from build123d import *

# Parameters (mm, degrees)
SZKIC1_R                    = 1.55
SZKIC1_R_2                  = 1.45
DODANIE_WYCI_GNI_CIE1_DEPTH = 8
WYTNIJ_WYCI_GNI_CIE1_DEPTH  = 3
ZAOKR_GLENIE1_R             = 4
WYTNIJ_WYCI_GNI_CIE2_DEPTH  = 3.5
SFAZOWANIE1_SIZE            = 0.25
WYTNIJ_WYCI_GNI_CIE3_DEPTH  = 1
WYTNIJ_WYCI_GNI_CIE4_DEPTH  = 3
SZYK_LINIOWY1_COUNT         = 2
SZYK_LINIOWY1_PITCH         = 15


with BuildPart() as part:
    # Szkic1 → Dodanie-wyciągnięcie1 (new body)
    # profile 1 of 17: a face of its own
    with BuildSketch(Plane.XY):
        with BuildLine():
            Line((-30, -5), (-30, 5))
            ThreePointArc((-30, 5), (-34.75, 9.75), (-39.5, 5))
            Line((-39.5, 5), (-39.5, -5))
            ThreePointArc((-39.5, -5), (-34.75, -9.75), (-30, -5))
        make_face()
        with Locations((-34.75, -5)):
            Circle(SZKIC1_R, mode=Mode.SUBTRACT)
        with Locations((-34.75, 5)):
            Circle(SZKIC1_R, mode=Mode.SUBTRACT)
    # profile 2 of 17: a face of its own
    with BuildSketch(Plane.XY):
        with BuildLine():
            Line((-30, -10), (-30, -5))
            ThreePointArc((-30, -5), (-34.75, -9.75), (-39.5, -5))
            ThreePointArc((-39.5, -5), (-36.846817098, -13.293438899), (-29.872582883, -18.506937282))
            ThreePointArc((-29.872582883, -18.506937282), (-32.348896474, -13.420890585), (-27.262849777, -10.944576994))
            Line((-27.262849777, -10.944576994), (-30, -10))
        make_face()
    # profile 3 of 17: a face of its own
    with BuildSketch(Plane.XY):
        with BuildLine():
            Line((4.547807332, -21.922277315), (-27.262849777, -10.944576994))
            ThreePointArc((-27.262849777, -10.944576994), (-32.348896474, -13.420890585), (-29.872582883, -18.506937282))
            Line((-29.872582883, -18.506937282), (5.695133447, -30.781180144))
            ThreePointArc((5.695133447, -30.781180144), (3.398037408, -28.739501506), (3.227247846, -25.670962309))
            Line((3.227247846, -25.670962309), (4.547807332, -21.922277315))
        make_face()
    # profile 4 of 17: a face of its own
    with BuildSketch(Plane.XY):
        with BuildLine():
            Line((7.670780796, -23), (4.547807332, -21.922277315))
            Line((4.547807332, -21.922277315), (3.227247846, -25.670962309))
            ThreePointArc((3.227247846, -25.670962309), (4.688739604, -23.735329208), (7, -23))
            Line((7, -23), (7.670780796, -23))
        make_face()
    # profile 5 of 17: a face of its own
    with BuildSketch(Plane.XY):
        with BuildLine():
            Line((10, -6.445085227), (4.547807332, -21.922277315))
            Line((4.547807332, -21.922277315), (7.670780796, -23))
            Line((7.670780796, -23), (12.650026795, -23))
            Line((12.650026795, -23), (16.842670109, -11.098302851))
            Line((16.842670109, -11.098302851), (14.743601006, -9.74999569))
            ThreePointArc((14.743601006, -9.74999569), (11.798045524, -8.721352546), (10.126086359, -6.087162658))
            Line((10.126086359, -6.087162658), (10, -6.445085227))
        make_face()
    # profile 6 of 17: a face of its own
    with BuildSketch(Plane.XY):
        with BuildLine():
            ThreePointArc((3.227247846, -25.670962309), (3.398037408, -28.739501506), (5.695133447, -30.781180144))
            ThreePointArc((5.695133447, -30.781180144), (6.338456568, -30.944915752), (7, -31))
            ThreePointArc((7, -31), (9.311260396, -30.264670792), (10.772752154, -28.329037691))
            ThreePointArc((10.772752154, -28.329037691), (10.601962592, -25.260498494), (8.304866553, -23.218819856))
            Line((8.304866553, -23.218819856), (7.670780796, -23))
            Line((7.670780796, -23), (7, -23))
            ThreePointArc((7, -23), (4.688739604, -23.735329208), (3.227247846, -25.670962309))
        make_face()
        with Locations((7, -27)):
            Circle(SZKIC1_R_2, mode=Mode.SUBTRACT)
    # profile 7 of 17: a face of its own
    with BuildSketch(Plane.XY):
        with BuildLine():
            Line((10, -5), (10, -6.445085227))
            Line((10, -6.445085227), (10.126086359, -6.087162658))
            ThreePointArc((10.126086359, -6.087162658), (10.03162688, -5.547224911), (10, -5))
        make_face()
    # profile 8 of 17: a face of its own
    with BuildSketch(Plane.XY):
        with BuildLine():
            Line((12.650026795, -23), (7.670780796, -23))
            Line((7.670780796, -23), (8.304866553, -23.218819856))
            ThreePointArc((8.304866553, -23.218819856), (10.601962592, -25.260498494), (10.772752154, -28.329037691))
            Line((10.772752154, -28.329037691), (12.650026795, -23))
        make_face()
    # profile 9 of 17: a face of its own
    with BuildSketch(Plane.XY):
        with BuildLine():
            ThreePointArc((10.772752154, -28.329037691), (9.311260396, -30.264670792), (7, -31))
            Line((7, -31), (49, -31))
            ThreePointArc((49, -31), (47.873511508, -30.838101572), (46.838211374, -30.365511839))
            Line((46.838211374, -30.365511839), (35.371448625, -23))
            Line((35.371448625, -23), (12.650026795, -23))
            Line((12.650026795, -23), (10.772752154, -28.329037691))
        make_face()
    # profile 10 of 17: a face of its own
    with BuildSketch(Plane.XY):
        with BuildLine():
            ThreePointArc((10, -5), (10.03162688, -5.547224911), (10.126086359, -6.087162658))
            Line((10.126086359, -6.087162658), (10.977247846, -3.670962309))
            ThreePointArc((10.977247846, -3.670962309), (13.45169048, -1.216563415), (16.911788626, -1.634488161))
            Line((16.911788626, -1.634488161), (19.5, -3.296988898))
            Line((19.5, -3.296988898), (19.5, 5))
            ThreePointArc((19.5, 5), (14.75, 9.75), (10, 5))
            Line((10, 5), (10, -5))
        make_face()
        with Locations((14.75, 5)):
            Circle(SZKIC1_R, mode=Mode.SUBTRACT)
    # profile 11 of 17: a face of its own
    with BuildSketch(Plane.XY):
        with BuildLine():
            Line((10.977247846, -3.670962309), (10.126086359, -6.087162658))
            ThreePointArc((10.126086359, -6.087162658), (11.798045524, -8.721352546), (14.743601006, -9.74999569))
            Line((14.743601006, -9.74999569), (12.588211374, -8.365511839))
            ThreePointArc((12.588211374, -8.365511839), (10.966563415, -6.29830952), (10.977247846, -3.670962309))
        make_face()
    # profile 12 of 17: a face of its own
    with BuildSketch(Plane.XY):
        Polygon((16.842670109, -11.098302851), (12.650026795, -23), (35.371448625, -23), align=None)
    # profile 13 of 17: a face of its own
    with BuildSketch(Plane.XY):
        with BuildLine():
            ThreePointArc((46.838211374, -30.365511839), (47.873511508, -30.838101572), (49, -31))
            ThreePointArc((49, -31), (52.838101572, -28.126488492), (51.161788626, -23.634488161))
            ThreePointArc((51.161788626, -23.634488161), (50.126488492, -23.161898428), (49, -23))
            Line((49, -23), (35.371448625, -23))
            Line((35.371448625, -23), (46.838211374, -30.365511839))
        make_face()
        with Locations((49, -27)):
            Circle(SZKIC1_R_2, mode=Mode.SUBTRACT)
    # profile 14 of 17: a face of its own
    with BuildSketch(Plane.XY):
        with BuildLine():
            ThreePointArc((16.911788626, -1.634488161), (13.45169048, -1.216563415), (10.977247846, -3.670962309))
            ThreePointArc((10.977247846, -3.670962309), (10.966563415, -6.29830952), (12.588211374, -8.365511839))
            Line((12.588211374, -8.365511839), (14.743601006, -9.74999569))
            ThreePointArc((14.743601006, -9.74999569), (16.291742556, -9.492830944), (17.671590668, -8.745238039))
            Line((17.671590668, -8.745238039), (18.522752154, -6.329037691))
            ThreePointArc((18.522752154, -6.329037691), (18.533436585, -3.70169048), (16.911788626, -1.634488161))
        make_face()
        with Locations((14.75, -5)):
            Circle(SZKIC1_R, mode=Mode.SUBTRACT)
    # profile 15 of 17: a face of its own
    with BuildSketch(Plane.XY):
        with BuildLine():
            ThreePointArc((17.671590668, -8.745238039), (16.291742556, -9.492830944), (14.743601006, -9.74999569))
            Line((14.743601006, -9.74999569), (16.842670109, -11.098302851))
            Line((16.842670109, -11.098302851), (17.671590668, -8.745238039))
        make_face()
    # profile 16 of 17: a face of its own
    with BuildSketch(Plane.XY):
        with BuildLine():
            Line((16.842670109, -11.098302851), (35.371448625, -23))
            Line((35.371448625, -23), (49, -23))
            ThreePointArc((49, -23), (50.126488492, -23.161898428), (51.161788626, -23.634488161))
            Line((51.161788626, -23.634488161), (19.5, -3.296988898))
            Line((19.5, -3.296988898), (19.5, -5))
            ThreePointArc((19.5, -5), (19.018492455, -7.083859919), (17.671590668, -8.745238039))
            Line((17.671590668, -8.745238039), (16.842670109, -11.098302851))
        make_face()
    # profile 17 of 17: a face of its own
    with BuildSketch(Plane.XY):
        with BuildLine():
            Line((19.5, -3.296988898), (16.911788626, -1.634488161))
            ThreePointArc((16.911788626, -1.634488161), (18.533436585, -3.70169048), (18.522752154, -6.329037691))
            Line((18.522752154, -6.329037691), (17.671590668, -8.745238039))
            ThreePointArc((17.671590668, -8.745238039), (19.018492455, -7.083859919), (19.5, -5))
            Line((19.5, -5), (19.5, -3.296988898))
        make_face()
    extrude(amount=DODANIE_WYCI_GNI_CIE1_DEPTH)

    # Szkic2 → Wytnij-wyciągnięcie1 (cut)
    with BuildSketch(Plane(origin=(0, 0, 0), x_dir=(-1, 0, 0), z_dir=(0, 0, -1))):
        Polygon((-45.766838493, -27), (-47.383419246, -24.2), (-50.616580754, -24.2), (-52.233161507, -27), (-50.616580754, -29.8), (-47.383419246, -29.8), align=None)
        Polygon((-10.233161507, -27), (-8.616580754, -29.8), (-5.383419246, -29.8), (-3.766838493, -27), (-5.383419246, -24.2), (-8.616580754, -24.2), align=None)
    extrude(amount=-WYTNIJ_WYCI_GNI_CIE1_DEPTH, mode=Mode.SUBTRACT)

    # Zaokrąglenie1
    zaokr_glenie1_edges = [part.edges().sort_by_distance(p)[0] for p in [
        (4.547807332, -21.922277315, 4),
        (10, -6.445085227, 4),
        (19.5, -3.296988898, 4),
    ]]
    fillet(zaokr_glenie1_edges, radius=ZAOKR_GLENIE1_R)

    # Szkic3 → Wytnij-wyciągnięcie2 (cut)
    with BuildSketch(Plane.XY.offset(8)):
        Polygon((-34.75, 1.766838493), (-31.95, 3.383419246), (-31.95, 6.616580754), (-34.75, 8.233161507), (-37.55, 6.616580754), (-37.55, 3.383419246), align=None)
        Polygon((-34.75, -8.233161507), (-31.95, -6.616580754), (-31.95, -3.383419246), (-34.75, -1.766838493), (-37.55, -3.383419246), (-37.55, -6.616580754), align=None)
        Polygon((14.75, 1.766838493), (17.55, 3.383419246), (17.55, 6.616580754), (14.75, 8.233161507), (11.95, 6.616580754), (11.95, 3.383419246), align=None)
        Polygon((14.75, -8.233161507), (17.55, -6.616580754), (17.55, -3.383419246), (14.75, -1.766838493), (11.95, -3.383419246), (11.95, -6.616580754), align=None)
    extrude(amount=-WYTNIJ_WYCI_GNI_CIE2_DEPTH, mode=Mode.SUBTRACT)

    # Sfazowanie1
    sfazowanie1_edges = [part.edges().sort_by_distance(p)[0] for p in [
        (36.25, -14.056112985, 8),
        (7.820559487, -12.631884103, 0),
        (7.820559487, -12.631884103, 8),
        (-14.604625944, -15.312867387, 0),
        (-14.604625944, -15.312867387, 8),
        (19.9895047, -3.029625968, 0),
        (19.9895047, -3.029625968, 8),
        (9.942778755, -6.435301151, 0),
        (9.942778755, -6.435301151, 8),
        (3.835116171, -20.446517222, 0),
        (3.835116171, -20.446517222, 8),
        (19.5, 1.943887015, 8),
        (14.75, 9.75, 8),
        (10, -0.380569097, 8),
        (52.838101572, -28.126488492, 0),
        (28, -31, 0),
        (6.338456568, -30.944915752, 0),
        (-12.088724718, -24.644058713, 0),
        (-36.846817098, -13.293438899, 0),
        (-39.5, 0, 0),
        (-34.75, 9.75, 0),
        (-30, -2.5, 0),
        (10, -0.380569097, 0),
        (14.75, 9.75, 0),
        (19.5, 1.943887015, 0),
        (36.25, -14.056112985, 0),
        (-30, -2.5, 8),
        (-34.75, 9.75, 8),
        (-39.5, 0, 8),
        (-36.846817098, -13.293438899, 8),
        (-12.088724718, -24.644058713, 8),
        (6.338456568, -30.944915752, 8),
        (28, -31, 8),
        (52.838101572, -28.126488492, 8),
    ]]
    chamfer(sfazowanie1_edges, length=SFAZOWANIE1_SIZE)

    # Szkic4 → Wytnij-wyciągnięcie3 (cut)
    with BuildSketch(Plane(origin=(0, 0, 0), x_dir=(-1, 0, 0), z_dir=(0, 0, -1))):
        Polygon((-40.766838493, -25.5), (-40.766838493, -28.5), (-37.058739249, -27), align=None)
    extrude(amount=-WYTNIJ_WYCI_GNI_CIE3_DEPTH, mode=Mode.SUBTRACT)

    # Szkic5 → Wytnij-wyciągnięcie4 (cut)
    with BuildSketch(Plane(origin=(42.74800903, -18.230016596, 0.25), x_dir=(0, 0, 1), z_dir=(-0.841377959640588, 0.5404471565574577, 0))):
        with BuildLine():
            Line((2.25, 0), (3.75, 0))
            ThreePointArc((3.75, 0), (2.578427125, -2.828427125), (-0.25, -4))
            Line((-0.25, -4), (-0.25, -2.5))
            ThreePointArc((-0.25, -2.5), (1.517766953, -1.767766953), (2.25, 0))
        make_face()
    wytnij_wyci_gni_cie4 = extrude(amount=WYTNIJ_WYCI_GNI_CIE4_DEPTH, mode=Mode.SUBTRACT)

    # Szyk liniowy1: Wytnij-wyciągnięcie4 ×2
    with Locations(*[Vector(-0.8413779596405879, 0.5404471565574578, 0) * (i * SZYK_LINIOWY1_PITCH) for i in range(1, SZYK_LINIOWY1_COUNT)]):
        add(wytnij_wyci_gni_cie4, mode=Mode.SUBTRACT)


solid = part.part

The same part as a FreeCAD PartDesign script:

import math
import FreeCAD as App
import Part
import Sketcher

V = App.Vector
Q = App.Units.Quantity


def edges_at(feature, points):
    """Names of the edges that pass closest to the given points."""
    edges = feature.Shape.Edges
    near = lambda p: min(range(len(edges)), key=lambda i: edges[i].distToShape(Part.Vertex(*p))[0])
    return sorted({f"Edge{near(p) + 1}" for p in points})

doc = App.newDocument("Part")
body = doc.addObject("PartDesign::Body", "Body")

# Sketch on XY plane
sketch1 = doc.addObject("Sketcher::SketchObject", "Sketch")
body.addObject(sketch1)
sketch1.AttachmentSupport = (doc.XY_Plane, [""])
sketch1.MapMode = "FlatFace"
sketch1.addGeometry(Part.ArcOfCircle(Part.Circle(V(-34.75, 5, 0), V(0, 0, 1), 4.75), math.radians(0), math.radians(180)), False)
sketch1.addGeometry(Part.LineSegment(V(-39.5, 5, 0), V(-39.5, -5, 0)), False)
sketch1.addGeometry(Part.ArcOfCircle(Part.Circle(V(-25.211406, -5, 0), V(0, 0, 1), 14.288594), math.radians(-180), math.radians(-109.039301)), False)
sketch1.addGeometry(Part.LineSegment(V(-29.872583, -18.506937, 0), V(5.695133, -30.78118, 0)), False)
sketch1.addGeometry(Part.ArcOfCircle(Part.Circle(V(7, -27, 0), V(0, 0, 1), 4), math.radians(-109.039301), math.radians(-90)), False)
sketch1.addGeometry(Part.LineSegment(V(7, -31, 0), V(49, -31, 0)), False)
sketch1.addGeometry(Part.ArcOfCircle(Part.Circle(V(49, -27, 0), V(0, 0, 1), 4), math.radians(-90), math.radians(57.285916)), False)
sketch1.addGeometry(Part.LineSegment(V(51.161789, -23.634488, 0), V(19.5, -3.296989, 0)), False)
sketch1.addGeometry(Part.LineSegment(V(19.5, -3.296989, 0), V(19.5, 5, 0)), False)
sketch1.addGeometry(Part.ArcOfCircle(Part.Circle(V(14.75, 5, 0), V(0, 0, 1), 4.75), math.radians(0), math.radians(180)), False)
sketch1.addGeometry(Part.LineSegment(V(10, 5, 0), V(10, -6.445085, 0)), False)
sketch1.addGeometry(Part.LineSegment(V(10, -6.445085, 0), V(4.547807, -21.922277, 0)), False)
sketch1.addGeometry(Part.LineSegment(V(4.547807, -21.922277, 0), V(-27.26285, -10.944577, 0)), False)
sketch1.addGeometry(Part.LineSegment(V(-27.26285, -10.944577, 0), V(-30, -10, 0)), False)
sketch1.addGeometry(Part.LineSegment(V(-30, -10, 0), V(-30, 5, 0)), False)
sketch1.addGeometry(Part.Circle(V(-34.75, -5, 0), V(0, 0, 1), 1.55), False)
sketch1.addGeometry(Part.Circle(V(-34.75, 5, 0), V(0, 0, 1), 1.55), False)
sketch1.addGeometry(Part.Circle(V(7, -27, 0), V(0, 0, 1), 1.45), False)
sketch1.addGeometry(Part.Circle(V(49, -27, 0), V(0, 0, 1), 1.45), False)
sketch1.addGeometry(Part.Circle(V(14.75, 5, 0), V(0, 0, 1), 1.55), False)
sketch1.addGeometry(Part.Circle(V(14.75, -5, 0), V(0, 0, 1), 1.55), False)
sketch1.addConstraint(Sketcher.Constraint("Coincident", 0, 2, 1, 1))
sketch1.addConstraint(Sketcher.Constraint("Coincident", 1, 2, 2, 1))
sketch1.addConstraint(Sketcher.Constraint("Coincident", 2, 2, 3, 1))
sketch1.addConstraint(Sketcher.Constraint("Coincident", 3, 2, 4, 1))
sketch1.addConstraint(Sketcher.Constraint("Coincident", 4, 2, 5, 1))
sketch1.addConstraint(Sketcher.Constraint("Coincident", 5, 2, 6, 1))
sketch1.addConstraint(Sketcher.Constraint("Coincident", 6, 2, 7, 1))
sketch1.addConstraint(Sketcher.Constraint("Coincident", 7, 2, 8, 1))
sketch1.addConstraint(Sketcher.Constraint("Coincident", 8, 2, 9, 1))
sketch1.addConstraint(Sketcher.Constraint("Coincident", 9, 2, 10, 1))
sketch1.addConstraint(Sketcher.Constraint("Coincident", 10, 2, 11, 1))
sketch1.addConstraint(Sketcher.Constraint("Coincident", 11, 2, 12, 1))
sketch1.addConstraint(Sketcher.Constraint("Coincident", 12, 2, 13, 1))
sketch1.addConstraint(Sketcher.Constraint("Coincident", 13, 2, 14, 1))
sketch1.addConstraint(Sketcher.Constraint("Coincident", 14, 2, 0, 1))
sketch1.addConstraint(Sketcher.Constraint("Vertical", 1))
sketch1.addConstraint(Sketcher.Constraint("Horizontal", 5))
sketch1.addConstraint(Sketcher.Constraint("Vertical", 8))
sketch1.addConstraint(Sketcher.Constraint("Vertical", 10))
sketch1.addConstraint(Sketcher.Constraint("Vertical", 14))
sketch1.addConstraint(Sketcher.Constraint("Coincident", 16, 3, 0, 3))
sketch1.addConstraint(Sketcher.Constraint("Coincident", 17, 3, 4, 3))
sketch1.addConstraint(Sketcher.Constraint("Coincident", 18, 3, 6, 3))
sketch1.addConstraint(Sketcher.Constraint("Coincident", 19, 3, 9, 3))
sketch1.addConstraint(Sketcher.Constraint("Radius", 4, 4.0))
sketch1.addConstraint(Sketcher.Constraint("Radius", 6, 4.0))
sketch1.addConstraint(Sketcher.Constraint("Diameter", 15, 3.1))
sketch1.addConstraint(Sketcher.Constraint("Diameter", 16, 3.1))
sketch1.addConstraint(Sketcher.Constraint("Diameter", 17, 2.9))
sketch1.addConstraint(Sketcher.Constraint("Diameter", 18, 2.9))
sketch1.addConstraint(Sketcher.Constraint("Diameter", 19, 3.1))
sketch1.addConstraint(Sketcher.Constraint("Diameter", 20, 3.1))
sketch1.addConstraint(Sketcher.Constraint("DistanceX", 5, 1, 5, 2, 42.0))
sketch1.addConstraint(Sketcher.Constraint("DistanceY", 1, 2, 1, 1, 10.0))
sketch1.addConstraint(Sketcher.Constraint("DistanceY", 14, 1, 14, 2, 15.0))
sketch1.addConstraint(Sketcher.Constraint("Radius", 0, 4.75))
sketch1.addConstraint(Sketcher.Constraint("Radius", 9, 4.75))
sketch1.addConstraint(Sketcher.Constraint("DistanceY", -1, 1, 0, 3, 5.0))
sketch1.addConstraint(Sketcher.Constraint("DistanceY", 2, 3, -1, 1, 5.0))
sketch1.addConstraint(Sketcher.Constraint("DistanceX", -1, 1, 4, 3, 7.0))
sketch1.addConstraint(Sketcher.Constraint("DistanceY", 4, 3, -1, 1, 27.0))
sketch1.addConstraint(Sketcher.Constraint("DistanceX", -1, 1, 6, 3, 49.0))
sketch1.addConstraint(Sketcher.Constraint("DistanceY", -1, 1, 9, 3, 5.0))
sketch1.addConstraint(Sketcher.Constraint("DistanceY", 15, 3, -1, 1, 5.0))
sketch1.addConstraint(Sketcher.Constraint("DistanceY", 20, 3, -1, 1, 5.0))
sketch1.addConstraint(Sketcher.Constraint("DistanceY", -1, 1, 0, 2, 5.0))
sketch1.addConstraint(Sketcher.Constraint("DistanceX", -1, 1, 4, 2, 7.0))
sketch1.addConstraint(Sketcher.Constraint("DistanceY", -1, 1, 8, 2, 5.0))
sketch1.addConstraint(Sketcher.Constraint("DistanceX", -1, 1, 9, 2, 10.0))
sketch1.addConstraint(Sketcher.Constraint("DistanceY", -1, 1, 9, 2, 5.0))
sketch1.addConstraint(Sketcher.Constraint("DistanceX", 13, 2, -1, 1, 30.0))
sketch1.addConstraint(Sketcher.Constraint("DistanceY", 13, 2, -1, 1, 10.0))
sketch1.addConstraint(Sketcher.Constraint("DistanceX", 15, 3, 9, 3, 49.5))
sketch1.addConstraint(Sketcher.Constraint("DistanceX", -1, 1, 20, 3, 14.75))
sketch1.addConstraint(Sketcher.Constraint("Radius", 2, 14.288594))
sketch1.addConstraint(Sketcher.Constraint("DistanceY", 8, 1, 8, 2, 8.296989))
sketch1.addConstraint(Sketcher.Constraint("Distance", 13, 2.895551))
sketch1.addConstraint(Sketcher.Constraint("DistanceY", 10, 2, 10, 1, 11.445085))
sketch1.addConstraint(Sketcher.Constraint("DistanceY", 3, 2, -1, 1, 30.78118))
sketch1.addConstraint(Sketcher.Constraint("DistanceX", -1, 1, 6, 2, 51.161789))
sketch1.addConstraint(Sketcher.Constraint("DistanceX", 12, 2, -1, 1, 27.26285))
sketch1.addConstraint(Sketcher.Constraint("DistanceY", 2, 2, 12, 2, 7.56236))
sketch1.addConstraint(Sketcher.Constraint("Distance", 11, 16.409445))
sketch1.addConstraint(Sketcher.Constraint("Distance", 12, 33.651565))
pad1 = doc.addObject("PartDesign::Pad", "Pad")
body.addObject(pad1)
pad1.Profile = sketch1
pad1.Length = 8

# Sketch on XY plane
sketch2 = doc.addObject("Sketcher::SketchObject", "Sketch001")
body.addObject(sketch2)
sketch2.AttachmentSupport = (doc.XY_Plane, [""])
sketch2.MapMode = "FlatFace"
sketch2.addGeometry(Part.LineSegment(V(45.8, -27, 0), V(47.4, -24.2, 0)), False)
sketch2.addGeometry(Part.LineSegment(V(47.4, -24.2, 0), V(50.6, -24.2, 0)), False)
sketch2.addGeometry(Part.LineSegment(V(50.6, -24.2, 0), V(52.2, -27, 0)), False)
sketch2.addGeometry(Part.LineSegment(V(52.2, -27, 0), V(50.6, -29.8, 0)), False)
sketch2.addGeometry(Part.LineSegment(V(50.6, -29.8, 0), V(47.4, -29.8, 0)), False)
sketch2.addGeometry(Part.LineSegment(V(47.4, -29.8, 0), V(45.8, -27, 0)), False)
sketch2.addGeometry(Part.LineSegment(V(10.2, -27, 0), V(8.6, -29.8, 0)), False)
sketch2.addGeometry(Part.LineSegment(V(8.6, -29.8, 0), V(5.4, -29.8, 0)), False)
sketch2.addGeometry(Part.LineSegment(V(5.4, -29.8, 0), V(3.8, -27, 0)), False)
sketch2.addGeometry(Part.LineSegment(V(3.8, -27, 0), V(5.4, -24.2, 0)), False)
sketch2.addGeometry(Part.LineSegment(V(5.4, -24.2, 0), V(8.6, -24.2, 0)), False)
sketch2.addGeometry(Part.LineSegment(V(8.6, -24.2, 0), V(10.2, -27, 0)), False)
sketch2.addConstraint(Sketcher.Constraint("Coincident", 0, 2, 1, 1))
sketch2.addConstraint(Sketcher.Constraint("Coincident", 1, 2, 2, 1))
sketch2.addConstraint(Sketcher.Constraint("Coincident", 2, 2, 3, 1))
sketch2.addConstraint(Sketcher.Constraint("Coincident", 3, 2, 4, 1))
sketch2.addConstraint(Sketcher.Constraint("Coincident", 4, 2, 5, 1))
sketch2.addConstraint(Sketcher.Constraint("Coincident", 5, 2, 0, 1))
sketch2.addConstraint(Sketcher.Constraint("Coincident", 6, 2, 7, 1))
sketch2.addConstraint(Sketcher.Constraint("Coincident", 7, 2, 8, 1))
sketch2.addConstraint(Sketcher.Constraint("Coincident", 8, 2, 9, 1))
sketch2.addConstraint(Sketcher.Constraint("Coincident", 9, 2, 10, 1))
sketch2.addConstraint(Sketcher.Constraint("Coincident", 10, 2, 11, 1))
sketch2.addConstraint(Sketcher.Constraint("Coincident", 11, 2, 6, 1))
sketch2.addConstraint(Sketcher.Constraint("Horizontal", 1))
sketch2.addConstraint(Sketcher.Constraint("Horizontal", 4))
sketch2.addConstraint(Sketcher.Constraint("Horizontal", 7))
sketch2.addConstraint(Sketcher.Constraint("Horizontal", 10))
sketch2.addConstraint(Sketcher.Constraint("Parallel", 0, 3))
sketch2.addConstraint(Sketcher.Constraint("Parallel", 2, 5))
sketch2.addConstraint(Sketcher.Constraint("Parallel", 3, 6))
sketch2.addConstraint(Sketcher.Constraint("Parallel", 5, 8))
sketch2.addConstraint(Sketcher.Constraint("Parallel", 6, 9))
sketch2.addConstraint(Sketcher.Constraint("Parallel", 8, 11))
sketch2.addConstraint(Sketcher.Constraint("Horizontal", 2, 2, 5, 2))
sketch2.addConstraint(Sketcher.Constraint("Horizontal", 4, 2, 6, 2))
sketch2.addConstraint(Sketcher.Constraint("Horizontal", 5, 2, 8, 2))
sketch2.addConstraint(Sketcher.Constraint("Horizontal", 1, 2, 9, 2))
sketch2.addConstraint(Sketcher.Constraint("Horizontal", 8, 2, 11, 2))
sketch2.addConstraint(Sketcher.Constraint("Vertical", 1, 2, 3, 2))
sketch2.addConstraint(Sketcher.Constraint("Vertical", 0, 2, 4, 2))
sketch2.addConstraint(Sketcher.Constraint("Equal", 4, 7))
sketch2.addConstraint(Sketcher.Constraint("Angle", 0, Q("60 deg")))
sketch2.addConstraint(Sketcher.Constraint("DistanceY", 2, 2, -1, 1, 27.0))
sketch2.addConstraint(Sketcher.Constraint("DistanceX", 6, 2, 3, 2, 42.0))
sketch2.addConstraint(Sketcher.Constraint("DistanceY", 0, 2, -1, 1, 24.2))
sketch2.addConstraint(Sketcher.Constraint("DistanceX", 1, 1, 1, 2, 3.233162))
sketch2.addConstraint(Sketcher.Constraint("DistanceX", -1, 1, 0, 2, 47.383419))
pocket1 = doc.addObject("PartDesign::Pocket", "Pocket")
body.addObject(pocket1)
pocket1.Profile = sketch2
pocket1.Length = 3
pocket1.Reversed = True
doc.recompute()

fillet = doc.addObject("PartDesign::Fillet", "Fillet")
body.addObject(fillet)
fillet.Base = (pocket1, edges_at(pocket1, [(4.548, -21.922, 4), (10, -6.445, 4), (19.5, -3.297, 4)]))
fillet.Radius = 4

# Sketch on XY plane
sketch3 = doc.addObject("Sketcher::SketchObject", "Sketch002")
body.addObject(sketch3)
sketch3.AttachmentSupport = (doc.XY_Plane, [""])
sketch3.MapMode = "FlatFace"
sketch3.AttachmentOffset = App.Placement(V(0, 0, 8), App.Rotation())
sketch3.addGeometry(Part.LineSegment(V(-34.8, 1.8, 0), V(-31.9, 3.4, 0)), False)
sketch3.addGeometry(Part.LineSegment(V(-31.9, 3.4, 0), V(-31.9, 6.6, 0)), False)
sketch3.addGeometry(Part.LineSegment(V(-31.9, 6.6, 0), V(-34.8, 8.2, 0)), False)
sketch3.addGeometry(Part.LineSegment(V(-34.8, 8.2, 0), V(-37.5, 6.6, 0)), False)
sketch3.addGeometry(Part.LineSegment(V(-37.5, 6.6, 0), V(-37.5, 3.4, 0)), False)
sketch3.addGeometry(Part.LineSegment(V(-37.5, 3.4, 0), V(-34.8, 1.8, 0)), False)
sketch3.addGeometry(Part.LineSegment(V(-34.8, -8.2, 0), V(-31.9, -6.6, 0)), False)
sketch3.addGeometry(Part.LineSegment(V(-31.9, -6.6, 0), V(-31.9, -3.4, 0)), False)
sketch3.addGeometry(Part.LineSegment(V(-31.9, -3.4, 0), V(-34.8, -1.8, 0)), False)
sketch3.addGeometry(Part.LineSegment(V(-34.8, -1.8, 0), V(-37.5, -3.4, 0)), False)
sketch3.addGeometry(Part.LineSegment(V(-37.5, -3.4, 0), V(-37.5, -6.6, 0)), False)
sketch3.addGeometry(Part.LineSegment(V(-37.5, -6.6, 0), V(-34.8, -8.2, 0)), False)
sketch3.addGeometry(Part.LineSegment(V(14.8, 1.8, 0), V(17.6, 3.4, 0)), False)
sketch3.addGeometry(Part.LineSegment(V(17.6, 3.4, 0), V(17.6, 6.6, 0)), False)
sketch3.addGeometry(Part.LineSegment(V(17.6, 6.6, 0), V(14.8, 8.2, 0)), False)
sketch3.addGeometry(Part.LineSegment(V(14.8, 8.2, 0), V(11.9, 6.6, 0)), False)
sketch3.addGeometry(Part.LineSegment(V(11.9, 6.6, 0), V(11.9, 3.4, 0)), False)
sketch3.addGeometry(Part.LineSegment(V(11.9, 3.4, 0), V(14.8, 1.8, 0)), False)
sketch3.addGeometry(Part.LineSegment(V(14.8, -8.2, 0), V(17.6, -6.6, 0)), False)
sketch3.addGeometry(Part.LineSegment(V(17.6, -6.6, 0), V(17.6, -3.4, 0)), False)
sketch3.addGeometry(Part.LineSegment(V(17.6, -3.4, 0), V(14.8, -1.8, 0)), False)
sketch3.addGeometry(Part.LineSegment(V(14.8, -1.8, 0), V(11.9, -3.4, 0)), False)
sketch3.addGeometry(Part.LineSegment(V(11.9, -3.4, 0), V(11.9, -6.6, 0)), False)
sketch3.addGeometry(Part.LineSegment(V(11.9, -6.6, 0), V(14.8, -8.2, 0)), False)
sketch3.addConstraint(Sketcher.Constraint("Coincident", 0, 2, 1, 1))
sketch3.addConstraint(Sketcher.Constraint("Coincident", 1, 2, 2, 1))
sketch3.addConstraint(Sketcher.Constraint("Coincident", 2, 2, 3, 1))
sketch3.addConstraint(Sketcher.Constraint("Coincident", 3, 2, 4, 1))
sketch3.addConstraint(Sketcher.Constraint("Coincident", 4, 2, 5, 1))
sketch3.addConstraint(Sketcher.Constraint("Coincident", 5, 2, 0, 1))
sketch3.addConstraint(Sketcher.Constraint("Coincident", 6, 2, 7, 1))
sketch3.addConstraint(Sketcher.Constraint("Coincident", 7, 2, 8, 1))
sketch3.addConstraint(Sketcher.Constraint("Coincident", 8, 2, 9, 1))
sketch3.addConstraint(Sketcher.Constraint("Coincident", 9, 2, 10, 1))
sketch3.addConstraint(Sketcher.Constraint("Coincident", 10, 2, 11, 1))
sketch3.addConstraint(Sketcher.Constraint("Coincident", 11, 2, 6, 1))
sketch3.addConstraint(Sketcher.Constraint("Coincident", 12, 2, 13, 1))
sketch3.addConstraint(Sketcher.Constraint("Coincident", 13, 2, 14, 1))
sketch3.addConstraint(Sketcher.Constraint("Coincident", 14, 2, 15, 1))
sketch3.addConstraint(Sketcher.Constraint("Coincident", 15, 2, 16, 1))
sketch3.addConstraint(Sketcher.Constraint("Coincident", 16, 2, 17, 1))
sketch3.addConstraint(Sketcher.Constraint("Coincident", 17, 2, 12, 1))
sketch3.addConstraint(Sketcher.Constraint("Coincident", 18, 2, 19, 1))
sketch3.addConstraint(Sketcher.Constraint("Coincident", 19, 2, 20, 1))
sketch3.addConstraint(Sketcher.Constraint("Coincident", 20, 2, 21, 1))
sketch3.addConstraint(Sketcher.Constraint("Coincident", 21, 2, 22, 1))
sketch3.addConstraint(Sketcher.Constraint("Coincident", 22, 2, 23, 1))
sketch3.addConstraint(Sketcher.Constraint("Coincident", 23, 2, 18, 1))
sketch3.addConstraint(Sketcher.Constraint("Vertical", 1))
sketch3.addConstraint(Sketcher.Constraint("Vertical", 4))
sketch3.addConstraint(Sketcher.Constraint("Vertical", 7))
sketch3.addConstraint(Sketcher.Constraint("Vertical", 10))
sketch3.addConstraint(Sketcher.Constraint("Vertical", 13))
sketch3.addConstraint(Sketcher.Constraint("Vertical", 16))
sketch3.addConstraint(Sketcher.Constraint("Vertical", 19))
sketch3.addConstraint(Sketcher.Constraint("Vertical", 22))
sketch3.addConstraint(Sketcher.Constraint("Symmetric", 1, 2, 6, 2, -1))
sketch3.addConstraint(Sketcher.Constraint("Symmetric", 5, 2, 8, 2, -1))
sketch3.addConstraint(Sketcher.Constraint("Symmetric", 4, 2, 9, 2, -1))
sketch3.addConstraint(Sketcher.Constraint("Symmetric", 2, 2, 11, 2, -1))
sketch3.addConstraint(Sketcher.Constraint("Symmetric", 13, 2, 18, 2, -1))
sketch3.addConstraint(Sketcher.Constraint("Symmetric", 17, 2, 20, 2, -1))
sketch3.addConstraint(Sketcher.Constraint("Symmetric", 16, 2, 21, 2, -1))
sketch3.addConstraint(Sketcher.Constraint("Symmetric", 14, 2, 23, 2, -1))
sketch3.addConstraint(Sketcher.Constraint("Parallel", 0, 3))
sketch3.addConstraint(Sketcher.Constraint("Parallel", 2, 5))
sketch3.addConstraint(Sketcher.Constraint("Parallel", 3, 6))
sketch3.addConstraint(Sketcher.Constraint("Parallel", 5, 8))
sketch3.addConstraint(Sketcher.Constraint("Parallel", 8, 11))
sketch3.addConstraint(Sketcher.Constraint("Parallel", 9, 12))
sketch3.addConstraint(Sketcher.Constraint("Parallel", 11, 14))
sketch3.addConstraint(Sketcher.Constraint("Parallel", 12, 15))
sketch3.addConstraint(Sketcher.Constraint("Parallel", 14, 17))
sketch3.addConstraint(Sketcher.Constraint("Parallel", 17, 20))
sketch3.addConstraint(Sketcher.Constraint("Parallel", 20, 23))
sketch3.addConstraint(Sketcher.Constraint("Horizontal", 1, 2, 3, 2))
sketch3.addConstraint(Sketcher.Constraint("Horizontal", 0, 2, 4, 2))
sketch3.addConstraint(Sketcher.Constraint("Horizontal", 4, 2, 12, 2))
sketch3.addConstraint(Sketcher.Constraint("Horizontal", 3, 2, 13, 2))
sketch3.addConstraint(Sketcher.Constraint("Horizontal", 2, 2, 14, 2))
sketch3.addConstraint(Sketcher.Constraint("Horizontal", 13, 2, 15, 2))
sketch3.addConstraint(Sketcher.Constraint("Horizontal", 12, 2, 16, 2))
sketch3.addConstraint(Sketcher.Constraint("Angle", 0, Q("30 deg")))
sketch3.addConstraint(Sketcher.Constraint("DistanceY", 6, 2, 0, 2, 10.0))
sketch3.addConstraint(Sketcher.Constraint("DistanceX", 2, 2, 1, 2, 2.8))
sketch3.addConstraint(Sketcher.Constraint("DistanceX", 0, 2, 12, 2, 49.5))
sketch3.addConstraint(Sketcher.Constraint("DistanceX", 0, 2, -1, 1, 31.95))
sketch3.addConstraint(Sketcher.Constraint("DistanceY", 1, 1, 1, 2, 3.233162))
pocket2 = doc.addObject("PartDesign::Pocket", "Pocket001")
body.addObject(pocket2)
pocket2.Profile = sketch3
pocket2.Length = 3.5
doc.recompute()

chamfer = doc.addObject("PartDesign::Chamfer", "Chamfer")
body.addObject(chamfer)
chamfer.Base = (pocket2, edges_at(pocket2, [
    (36.25, -14.056, 8),
    (7.821, -12.632, 0),
    (7.821, -12.632, 8),
    (-13.236, -15.785, 0),
    (-13.236, -15.785, 8),
    (19.99, -3.03, 0),
    (19.99, -3.03, 8),
    (9.943, -6.435, 0),
    (9.943, -6.435, 8),
    (3.835, -20.447, 0),
    (3.835, -20.447, 8),
    (19.5, 1.944, 8),
    (14.75, 9.75, 8),
    (10, -0.381, 8),
    (52.838, -28.126, 0),
    (28, -31, 0),
    (6.338, -30.945, 0),
    (-12.089, -24.644, 0),
    (-36.847, -13.293, 0),
    (-39.5, 0, 0),
    (-34.75, 9.75, 0),
    (-30, -2.5, 0),
    (10, -0.381, 0),
    (14.75, 9.75, 0),
    (19.5, 1.944, 0),
    (36.25, -14.056, 0),
    (-30, -2.5, 8),
    (-34.75, 9.75, 8),
    (-39.5, 0, 8),
    (-36.847, -13.293, 8),
    (-12.089, -24.644, 8),
    (6.338, -30.945, 8),
    (28, -31, 8),
    (52.838, -28.126, 8),
]))
chamfer.Size = 0.25

# Sketch on XY plane
sketch4 = doc.addObject("Sketcher::SketchObject", "Sketch003")
body.addObject(sketch4)
sketch4.AttachmentSupport = (doc.XY_Plane, [""])
sketch4.MapMode = "FlatFace"
sketch4.addGeometry(Part.LineSegment(V(40.8, -25.5, 0), V(40.8, -28.5, 0)), False)
sketch4.addGeometry(Part.LineSegment(V(40.8, -28.5, 0), V(37.1, -27, 0)), False)
sketch4.addGeometry(Part.LineSegment(V(37.1, -27, 0), V(40.8, -25.5, 0)), False)
sketch4.addConstraint(Sketcher.Constraint("Coincident", 0, 2, 1, 1))
sketch4.addConstraint(Sketcher.Constraint("Coincident", 1, 2, 2, 1))
sketch4.addConstraint(Sketcher.Constraint("Coincident", 2, 2, 0, 1))
sketch4.addConstraint(Sketcher.Constraint("Vertical", 0))
sketch4.addConstraint(Sketcher.Constraint("Equal", 1, 2))
sketch4.addConstraint(Sketcher.Constraint("DistanceY", 0, 2, 0, 1, 3.0))
sketch4.addConstraint(Sketcher.Constraint("Distance", 1, 4.0))
sketch4.addConstraint(Sketcher.Constraint("DistanceY", 1, 2, -1, 1, 27.0))
sketch4.addConstraint(Sketcher.Constraint("DistanceX", -1, 1, 0, 2, 40.766838))
pocket3 = doc.addObject("PartDesign::Pocket", "Pocket002")
body.addObject(pocket3)
pocket3.Profile = sketch4
pocket3.Length = 1
pocket3.Reversed = True

# Sketch on an angled plane
sketch5 = doc.addObject("Sketcher::SketchObject", "Sketch004")
body.addObject(sketch5)
sketch5.Placement = App.Placement(V(42.748009, -18.230017, 0.25), App.Rotation(V(0, 0, 1), V(0.540447157, 0.84137796, 0), V(-0.84137796, 0.540447157, 0), "ZXY"))
sketch5.addGeometry(Part.LineSegment(V(3.8, 0, 0), V(2.2, 0, 0)), False)
sketch5.addGeometry(Part.ArcOfCircle(Part.Circle(V(-0.2, 0, 0), V(0, 0, 1), 2.5), math.radians(-90), math.radians(0)), False)
sketch5.addGeometry(Part.LineSegment(V(-0.2, -2.5, 0), V(-0.2, -4, 0)), False)
sketch5.addGeometry(Part.ArcOfCircle(Part.Circle(V(-0.2, 0, 0), V(0, 0, 1), 4), math.radians(-90), math.radians(0)), False)
sketch5.addConstraint(Sketcher.Constraint("Coincident", 0, 2, 1, 2))
sketch5.addConstraint(Sketcher.Constraint("Coincident", 1, 1, 2, 1))
sketch5.addConstraint(Sketcher.Constraint("Coincident", 2, 2, 3, 1))
sketch5.addConstraint(Sketcher.Constraint("Coincident", 3, 2, 0, 1))
sketch5.addConstraint(Sketcher.Constraint("Horizontal", 0))
sketch5.addConstraint(Sketcher.Constraint("Vertical", 2))
sketch5.addConstraint(Sketcher.Constraint("Coincident", 3, 3, 1, 3))
sketch5.addConstraint(Sketcher.Constraint("PointOnObject", 1, 3, -1))
sketch5.addConstraint(Sketcher.Constraint("PointOnObject", 0, 2, -1))
sketch5.addConstraint(Sketcher.Constraint("Vertical", 3, 3, 1, 1))
sketch5.addConstraint(Sketcher.Constraint("Radius", 3, 4.0))
sketch5.addConstraint(Sketcher.Constraint("Radius", 1, 2.5))
sketch5.addConstraint(Sketcher.Constraint("DistanceX", 1, 3, -1, 1, 0.25))
pocket4 = doc.addObject("PartDesign::Pocket", "Pocket003")
body.addObject(pocket4)
pocket4.Profile = sketch5
pocket4.Length = 3
pocket4.Reversed = True
doc.recompute()

datumline = doc.addObject("PartDesign::Line", "DatumLine")
body.addObject(datumline)
datumline.Placement = App.Placement(V(0, 0, 0), App.Rotation(V(0, 0, 1), V(-0.84137796, 0.540447157, 0)))
linearpattern = doc.addObject("PartDesign::LinearPattern", "LinearPattern")
body.addObject(linearpattern)
linearpattern.Originals = [pocket4]
linearpattern.Direction = (datumline, [""])
linearpattern.Mode = "offset"
linearpattern.Offset = 15
linearpattern.Occurrences = 2
body.Tip = linearpattern

doc.recompute()
